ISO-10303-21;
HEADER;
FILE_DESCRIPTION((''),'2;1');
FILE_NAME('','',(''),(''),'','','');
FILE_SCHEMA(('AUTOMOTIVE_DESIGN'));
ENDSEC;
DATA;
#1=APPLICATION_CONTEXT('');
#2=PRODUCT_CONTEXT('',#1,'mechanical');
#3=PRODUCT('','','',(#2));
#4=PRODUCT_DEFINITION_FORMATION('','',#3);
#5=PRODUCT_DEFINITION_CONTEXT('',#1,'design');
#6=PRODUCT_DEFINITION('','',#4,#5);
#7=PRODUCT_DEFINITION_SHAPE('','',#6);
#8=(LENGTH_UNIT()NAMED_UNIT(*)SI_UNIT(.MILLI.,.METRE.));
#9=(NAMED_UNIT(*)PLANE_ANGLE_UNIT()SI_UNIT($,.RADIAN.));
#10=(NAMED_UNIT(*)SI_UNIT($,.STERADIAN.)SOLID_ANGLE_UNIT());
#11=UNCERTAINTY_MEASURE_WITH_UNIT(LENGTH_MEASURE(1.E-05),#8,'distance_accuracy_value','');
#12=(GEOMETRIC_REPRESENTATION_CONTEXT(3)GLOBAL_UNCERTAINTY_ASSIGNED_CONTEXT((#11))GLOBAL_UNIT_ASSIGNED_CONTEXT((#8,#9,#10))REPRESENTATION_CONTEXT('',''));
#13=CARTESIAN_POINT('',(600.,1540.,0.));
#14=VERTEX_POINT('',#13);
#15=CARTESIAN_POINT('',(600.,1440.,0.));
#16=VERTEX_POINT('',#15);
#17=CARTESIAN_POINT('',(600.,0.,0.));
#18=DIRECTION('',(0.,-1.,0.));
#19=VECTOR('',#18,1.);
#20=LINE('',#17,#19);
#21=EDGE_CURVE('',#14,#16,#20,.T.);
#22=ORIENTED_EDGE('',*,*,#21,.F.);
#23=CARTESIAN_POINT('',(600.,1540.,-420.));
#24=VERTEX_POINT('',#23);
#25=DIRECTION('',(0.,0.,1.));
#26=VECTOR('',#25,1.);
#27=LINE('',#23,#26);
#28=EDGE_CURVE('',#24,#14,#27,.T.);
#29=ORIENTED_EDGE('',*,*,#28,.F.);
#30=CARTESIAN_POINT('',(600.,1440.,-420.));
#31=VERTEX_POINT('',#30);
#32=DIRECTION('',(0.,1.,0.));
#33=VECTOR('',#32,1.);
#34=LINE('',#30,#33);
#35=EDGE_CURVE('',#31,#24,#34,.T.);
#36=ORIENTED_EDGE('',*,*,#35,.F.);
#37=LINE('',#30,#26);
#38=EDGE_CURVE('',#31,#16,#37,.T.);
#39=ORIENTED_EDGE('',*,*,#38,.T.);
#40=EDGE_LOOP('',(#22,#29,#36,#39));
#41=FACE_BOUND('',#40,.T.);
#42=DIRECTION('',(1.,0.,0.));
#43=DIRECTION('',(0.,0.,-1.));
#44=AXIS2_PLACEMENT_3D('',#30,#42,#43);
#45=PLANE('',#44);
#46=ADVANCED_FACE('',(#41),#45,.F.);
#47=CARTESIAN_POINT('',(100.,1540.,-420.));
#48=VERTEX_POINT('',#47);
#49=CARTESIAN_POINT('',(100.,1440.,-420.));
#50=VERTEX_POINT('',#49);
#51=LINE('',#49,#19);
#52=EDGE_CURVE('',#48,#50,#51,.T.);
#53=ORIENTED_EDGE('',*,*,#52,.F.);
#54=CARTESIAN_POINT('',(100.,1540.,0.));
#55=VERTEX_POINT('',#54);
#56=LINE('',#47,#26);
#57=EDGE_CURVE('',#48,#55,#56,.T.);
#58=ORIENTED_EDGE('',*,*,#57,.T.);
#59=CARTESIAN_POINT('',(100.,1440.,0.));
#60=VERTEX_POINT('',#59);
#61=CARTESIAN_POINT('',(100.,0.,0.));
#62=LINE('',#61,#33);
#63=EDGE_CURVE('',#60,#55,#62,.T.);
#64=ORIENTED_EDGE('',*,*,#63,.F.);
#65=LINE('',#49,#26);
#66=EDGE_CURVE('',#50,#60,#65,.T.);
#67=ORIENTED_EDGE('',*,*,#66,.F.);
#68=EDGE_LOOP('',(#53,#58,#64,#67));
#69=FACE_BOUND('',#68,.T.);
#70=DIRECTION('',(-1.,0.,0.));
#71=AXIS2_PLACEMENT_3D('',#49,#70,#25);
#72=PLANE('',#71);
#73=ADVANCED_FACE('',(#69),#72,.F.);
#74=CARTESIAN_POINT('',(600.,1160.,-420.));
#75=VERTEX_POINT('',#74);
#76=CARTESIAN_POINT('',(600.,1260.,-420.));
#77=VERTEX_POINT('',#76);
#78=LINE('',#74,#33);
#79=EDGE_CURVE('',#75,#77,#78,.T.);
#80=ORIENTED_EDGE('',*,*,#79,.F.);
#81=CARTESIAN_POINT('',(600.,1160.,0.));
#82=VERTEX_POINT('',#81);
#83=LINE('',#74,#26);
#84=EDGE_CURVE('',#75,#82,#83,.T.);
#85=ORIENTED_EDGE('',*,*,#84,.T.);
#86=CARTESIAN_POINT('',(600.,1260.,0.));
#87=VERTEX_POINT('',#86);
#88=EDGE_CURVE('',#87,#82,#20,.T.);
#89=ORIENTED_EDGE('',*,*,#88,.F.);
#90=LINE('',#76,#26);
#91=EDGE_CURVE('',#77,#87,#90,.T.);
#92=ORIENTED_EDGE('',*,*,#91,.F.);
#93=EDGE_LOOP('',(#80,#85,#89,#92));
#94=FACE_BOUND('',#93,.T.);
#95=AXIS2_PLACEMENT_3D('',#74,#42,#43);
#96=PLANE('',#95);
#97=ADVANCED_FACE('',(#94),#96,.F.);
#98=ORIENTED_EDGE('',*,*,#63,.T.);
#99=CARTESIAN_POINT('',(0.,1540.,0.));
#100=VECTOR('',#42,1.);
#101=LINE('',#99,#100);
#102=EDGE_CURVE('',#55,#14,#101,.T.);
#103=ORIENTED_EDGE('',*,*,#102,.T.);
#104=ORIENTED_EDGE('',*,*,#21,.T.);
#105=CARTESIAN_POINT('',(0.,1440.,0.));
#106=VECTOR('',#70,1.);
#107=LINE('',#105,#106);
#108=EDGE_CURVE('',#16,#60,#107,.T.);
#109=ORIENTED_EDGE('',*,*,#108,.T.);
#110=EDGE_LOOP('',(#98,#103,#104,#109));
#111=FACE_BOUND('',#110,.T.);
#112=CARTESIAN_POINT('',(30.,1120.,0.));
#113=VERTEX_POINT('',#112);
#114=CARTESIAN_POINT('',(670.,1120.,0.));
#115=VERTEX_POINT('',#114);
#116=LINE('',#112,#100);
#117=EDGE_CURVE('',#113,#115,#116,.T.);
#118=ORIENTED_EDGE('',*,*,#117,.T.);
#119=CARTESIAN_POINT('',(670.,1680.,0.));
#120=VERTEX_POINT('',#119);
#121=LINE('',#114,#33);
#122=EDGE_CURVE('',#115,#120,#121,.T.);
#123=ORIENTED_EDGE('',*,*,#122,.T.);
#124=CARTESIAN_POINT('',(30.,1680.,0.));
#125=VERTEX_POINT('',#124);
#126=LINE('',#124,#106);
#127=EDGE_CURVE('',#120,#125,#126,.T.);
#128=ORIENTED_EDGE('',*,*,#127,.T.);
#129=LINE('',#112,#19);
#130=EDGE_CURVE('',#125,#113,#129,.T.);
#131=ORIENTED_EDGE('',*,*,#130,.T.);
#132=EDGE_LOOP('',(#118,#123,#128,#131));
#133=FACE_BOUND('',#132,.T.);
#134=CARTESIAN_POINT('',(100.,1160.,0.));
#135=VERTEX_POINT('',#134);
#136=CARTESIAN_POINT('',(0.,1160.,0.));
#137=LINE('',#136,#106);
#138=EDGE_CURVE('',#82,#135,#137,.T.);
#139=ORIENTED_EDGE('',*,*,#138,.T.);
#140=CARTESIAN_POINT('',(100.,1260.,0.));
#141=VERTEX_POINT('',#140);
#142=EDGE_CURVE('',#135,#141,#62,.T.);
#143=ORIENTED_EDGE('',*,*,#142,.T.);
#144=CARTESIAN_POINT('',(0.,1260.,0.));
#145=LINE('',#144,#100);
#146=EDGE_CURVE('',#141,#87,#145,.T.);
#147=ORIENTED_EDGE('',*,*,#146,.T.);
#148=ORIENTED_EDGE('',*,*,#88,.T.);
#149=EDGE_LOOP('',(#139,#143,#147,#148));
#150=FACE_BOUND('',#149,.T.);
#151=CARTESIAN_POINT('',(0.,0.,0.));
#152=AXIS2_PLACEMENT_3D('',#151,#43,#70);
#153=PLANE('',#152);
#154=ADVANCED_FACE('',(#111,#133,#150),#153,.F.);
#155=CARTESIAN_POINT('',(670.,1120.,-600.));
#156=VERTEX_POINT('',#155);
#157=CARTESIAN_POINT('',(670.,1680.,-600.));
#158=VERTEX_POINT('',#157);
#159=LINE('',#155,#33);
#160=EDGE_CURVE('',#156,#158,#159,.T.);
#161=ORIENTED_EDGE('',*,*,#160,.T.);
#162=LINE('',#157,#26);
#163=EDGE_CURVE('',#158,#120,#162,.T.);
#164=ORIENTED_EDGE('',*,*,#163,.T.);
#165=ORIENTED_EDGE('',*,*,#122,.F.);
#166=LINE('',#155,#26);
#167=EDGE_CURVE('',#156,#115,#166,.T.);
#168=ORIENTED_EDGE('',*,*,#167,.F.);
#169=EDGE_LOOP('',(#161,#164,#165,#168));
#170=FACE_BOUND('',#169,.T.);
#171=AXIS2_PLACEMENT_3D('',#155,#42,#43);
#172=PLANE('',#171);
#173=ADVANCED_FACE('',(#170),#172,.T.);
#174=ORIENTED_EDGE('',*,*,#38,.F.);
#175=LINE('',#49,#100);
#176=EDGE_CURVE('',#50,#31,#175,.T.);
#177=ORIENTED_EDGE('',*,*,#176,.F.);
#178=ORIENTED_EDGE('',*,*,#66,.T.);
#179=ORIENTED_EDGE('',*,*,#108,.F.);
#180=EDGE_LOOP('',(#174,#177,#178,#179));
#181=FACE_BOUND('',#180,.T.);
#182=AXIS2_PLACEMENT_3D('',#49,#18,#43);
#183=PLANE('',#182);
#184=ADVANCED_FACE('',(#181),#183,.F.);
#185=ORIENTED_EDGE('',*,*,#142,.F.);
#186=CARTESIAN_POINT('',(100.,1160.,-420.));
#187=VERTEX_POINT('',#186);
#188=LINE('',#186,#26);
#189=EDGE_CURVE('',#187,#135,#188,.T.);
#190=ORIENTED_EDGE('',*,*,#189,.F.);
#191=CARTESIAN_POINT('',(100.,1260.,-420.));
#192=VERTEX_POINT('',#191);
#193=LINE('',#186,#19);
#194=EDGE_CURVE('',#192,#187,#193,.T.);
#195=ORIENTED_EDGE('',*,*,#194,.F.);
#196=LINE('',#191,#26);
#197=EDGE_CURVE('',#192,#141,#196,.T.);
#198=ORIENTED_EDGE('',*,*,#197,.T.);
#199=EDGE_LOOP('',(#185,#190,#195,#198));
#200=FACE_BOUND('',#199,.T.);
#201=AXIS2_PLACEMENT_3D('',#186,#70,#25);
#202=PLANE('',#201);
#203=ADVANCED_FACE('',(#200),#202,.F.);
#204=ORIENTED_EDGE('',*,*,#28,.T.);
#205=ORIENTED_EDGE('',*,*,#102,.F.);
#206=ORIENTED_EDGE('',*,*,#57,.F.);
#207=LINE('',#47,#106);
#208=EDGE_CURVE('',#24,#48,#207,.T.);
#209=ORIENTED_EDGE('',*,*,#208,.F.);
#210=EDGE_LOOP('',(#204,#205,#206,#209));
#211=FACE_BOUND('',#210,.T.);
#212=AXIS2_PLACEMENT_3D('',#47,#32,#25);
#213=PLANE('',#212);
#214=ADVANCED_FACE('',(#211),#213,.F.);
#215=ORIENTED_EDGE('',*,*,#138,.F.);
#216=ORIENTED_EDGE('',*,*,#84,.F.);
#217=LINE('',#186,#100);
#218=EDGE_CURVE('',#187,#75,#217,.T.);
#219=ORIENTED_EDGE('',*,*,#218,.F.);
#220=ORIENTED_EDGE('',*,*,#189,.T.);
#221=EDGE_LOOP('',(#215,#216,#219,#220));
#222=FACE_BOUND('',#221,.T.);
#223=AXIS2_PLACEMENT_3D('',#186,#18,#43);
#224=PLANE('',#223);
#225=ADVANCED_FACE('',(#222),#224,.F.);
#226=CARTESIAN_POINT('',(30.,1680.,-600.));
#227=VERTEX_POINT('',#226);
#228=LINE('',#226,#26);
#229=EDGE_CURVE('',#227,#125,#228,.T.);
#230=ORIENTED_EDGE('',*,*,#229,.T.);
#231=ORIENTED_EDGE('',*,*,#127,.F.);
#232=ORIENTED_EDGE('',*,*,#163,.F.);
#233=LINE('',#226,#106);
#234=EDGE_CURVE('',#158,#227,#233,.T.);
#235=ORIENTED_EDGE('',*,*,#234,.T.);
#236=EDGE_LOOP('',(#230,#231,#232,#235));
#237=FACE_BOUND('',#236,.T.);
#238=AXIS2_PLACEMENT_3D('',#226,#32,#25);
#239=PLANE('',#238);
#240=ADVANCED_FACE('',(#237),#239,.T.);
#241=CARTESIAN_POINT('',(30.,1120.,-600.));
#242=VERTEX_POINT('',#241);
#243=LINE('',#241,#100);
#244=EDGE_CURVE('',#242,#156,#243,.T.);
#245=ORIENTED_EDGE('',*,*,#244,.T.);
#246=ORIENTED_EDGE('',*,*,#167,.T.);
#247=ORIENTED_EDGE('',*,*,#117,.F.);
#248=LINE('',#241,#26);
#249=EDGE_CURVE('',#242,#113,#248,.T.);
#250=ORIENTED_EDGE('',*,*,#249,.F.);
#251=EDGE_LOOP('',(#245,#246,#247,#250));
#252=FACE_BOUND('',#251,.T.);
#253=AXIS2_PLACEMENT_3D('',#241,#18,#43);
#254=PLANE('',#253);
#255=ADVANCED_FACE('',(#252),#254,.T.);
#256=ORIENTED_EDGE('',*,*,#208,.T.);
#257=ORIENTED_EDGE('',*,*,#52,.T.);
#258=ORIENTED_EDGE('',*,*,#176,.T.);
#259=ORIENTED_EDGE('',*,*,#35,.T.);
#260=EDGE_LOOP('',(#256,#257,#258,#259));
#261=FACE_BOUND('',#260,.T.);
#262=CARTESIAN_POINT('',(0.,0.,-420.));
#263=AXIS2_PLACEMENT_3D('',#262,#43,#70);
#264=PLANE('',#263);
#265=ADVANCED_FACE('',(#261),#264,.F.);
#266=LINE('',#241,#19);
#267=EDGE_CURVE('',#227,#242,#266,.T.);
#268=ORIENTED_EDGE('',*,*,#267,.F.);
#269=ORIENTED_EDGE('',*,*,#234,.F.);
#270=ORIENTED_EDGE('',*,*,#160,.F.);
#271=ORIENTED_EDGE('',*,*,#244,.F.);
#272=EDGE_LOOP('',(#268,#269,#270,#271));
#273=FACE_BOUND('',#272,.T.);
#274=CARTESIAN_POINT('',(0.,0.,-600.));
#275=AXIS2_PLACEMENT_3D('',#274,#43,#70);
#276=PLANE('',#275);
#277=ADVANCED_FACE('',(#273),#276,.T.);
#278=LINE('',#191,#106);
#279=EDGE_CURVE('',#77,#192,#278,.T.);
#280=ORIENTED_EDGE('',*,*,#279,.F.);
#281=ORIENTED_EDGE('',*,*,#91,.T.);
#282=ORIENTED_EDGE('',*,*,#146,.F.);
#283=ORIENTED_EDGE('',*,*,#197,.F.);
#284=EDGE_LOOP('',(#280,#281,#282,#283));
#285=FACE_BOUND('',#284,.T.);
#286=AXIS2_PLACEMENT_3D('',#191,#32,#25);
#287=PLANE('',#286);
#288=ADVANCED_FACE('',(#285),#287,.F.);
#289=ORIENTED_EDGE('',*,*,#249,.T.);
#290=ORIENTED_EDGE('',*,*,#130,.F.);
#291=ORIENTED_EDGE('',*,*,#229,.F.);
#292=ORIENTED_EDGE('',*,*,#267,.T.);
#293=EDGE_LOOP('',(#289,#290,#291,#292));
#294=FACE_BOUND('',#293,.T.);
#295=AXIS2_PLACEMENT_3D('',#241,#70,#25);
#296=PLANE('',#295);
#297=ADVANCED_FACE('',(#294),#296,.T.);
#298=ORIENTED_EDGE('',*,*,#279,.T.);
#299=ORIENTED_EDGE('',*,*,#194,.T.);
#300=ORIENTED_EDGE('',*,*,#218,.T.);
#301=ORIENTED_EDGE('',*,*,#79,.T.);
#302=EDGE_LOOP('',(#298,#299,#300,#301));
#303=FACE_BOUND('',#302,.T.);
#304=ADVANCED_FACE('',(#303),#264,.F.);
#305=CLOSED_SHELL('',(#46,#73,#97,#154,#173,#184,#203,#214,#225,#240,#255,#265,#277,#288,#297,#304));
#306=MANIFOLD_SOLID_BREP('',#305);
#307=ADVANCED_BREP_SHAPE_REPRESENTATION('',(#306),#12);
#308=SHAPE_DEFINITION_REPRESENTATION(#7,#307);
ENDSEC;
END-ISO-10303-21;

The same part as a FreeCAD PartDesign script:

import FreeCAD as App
import Part
import Sketcher
Q = App.Units.Quantity

doc = App.newDocument("Part")
body = doc.addObject("PartDesign::Body", "Body")

# Sketch on XY plane
sketch1 = doc.addObject("Sketcher::SketchObject", "Sketch")
body.addObject(sketch1)
sketch1.AttachmentSupport = (doc.XY_Plane, [""])
sketch1.MapMode = "FlatFace"
sketch1.addGeometry(Part.LineSegment(App.Vector(30, 1680, 0), App.Vector(30, 1120, 0)), False)
sketch1.addGeometry(Part.LineSegment(App.Vector(30, 1120, 0), App.Vector(670, 1120, 0)), False)
sketch1.addGeometry(Part.LineSegment(App.Vector(670, 1120, 0), App.Vector(670, 1680, 0)), False)
sketch1.addGeometry(Part.LineSegment(App.Vector(670, 1680, 0), App.Vector(30, 1680, 0)), False)
sketch1.addConstraint(Sketcher.Constraint("Coincident", 0, 2, 1, 1))
sketch1.addConstraint(Sketcher.Constraint("Coincident", 1, 2, 2, 1))
sketch1.addConstraint(Sketcher.Constraint("Coincident", 2, 2, 3, 1))
sketch1.addConstraint(Sketcher.Constraint("Coincident", 3, 2, 0, 1))
sketch1.addConstraint(Sketcher.Constraint("Vertical", 0))
sketch1.addConstraint(Sketcher.Constraint("Horizontal", 1))
sketch1.addConstraint(Sketcher.Constraint("Vertical", 2))
sketch1.addConstraint(Sketcher.Constraint("Horizontal", 3))
sketch1.addConstraint(Sketcher.Constraint("DistanceX", 1, 1, 1, 2, Q("640 mm")))
sketch1.addConstraint(Sketcher.Constraint("DistanceY", 0, 2, 0, 1, Q("560 mm")))
sketch1.addConstraint(Sketcher.Constraint("DistanceX", -1, 1, 0, 2, Q("30 mm")))
sketch1.addConstraint(Sketcher.Constraint("DistanceY", -1, 1, 0, 2, Q("1120 mm")))
pad1 = doc.addObject("PartDesign::Pad", "Pad")
body.addObject(pad1)
pad1.Profile = sketch1
pad1.Length = 600
pad1.Reversed = True

# Sketch on XY plane
sketch2 = doc.addObject("Sketcher::SketchObject", "Sketch001")
body.addObject(sketch2)
sketch2.AttachmentSupport = (doc.XY_Plane, [""])
sketch2.MapMode = "FlatFace"
sketch2.AttachmentOffset = App.Placement(App.Vector(0, 0, 1), App.Rotation())
sketch2.addGeometry(Part.LineSegment(App.Vector(100, 1260, 0), App.Vector(100, 1160, 0)), False)
sketch2.addGeometry(Part.LineSegment(App.Vector(100, 1160, 0), App.Vector(600, 1160, 0)), False)
sketch2.addGeometry(Part.LineSegment(App.Vector(600, 1160, 0), App.Vector(600, 1260, 0)), False)
sketch2.addGeometry(Part.LineSegment(App.Vector(600, 1260, 0), App.Vector(100, 1260, 0)), False)
sketch2.addConstraint(Sketcher.Constraint("Coincident", 0, 2, 1, 1))
sketch2.addConstraint(Sketcher.Constraint("Coincident", 1, 2, 2, 1))
sketch2.addConstraint(Sketcher.Constraint("Coincident", 2, 2, 3, 1))
sketch2.addConstraint(Sketcher.Constraint("Coincident", 3, 2, 0, 1))
sketch2.addConstraint(Sketcher.Constraint("Vertical", 0))
sketch2.addConstraint(Sketcher.Constraint("Horizontal", 1))
sketch2.addConstraint(Sketcher.Constraint("Vertical", 2))
sketch2.addConstraint(Sketcher.Constraint("Horizontal", 3))
sketch2.addConstraint(Sketcher.Constraint("DistanceX", 1, 1, 1, 2, Q("500 mm")))
sketch2.addConstraint(Sketcher.Constraint("DistanceY", 0, 2, 0, 1, Q("100 mm")))
sketch2.addConstraint(Sketcher.Constraint("DistanceX", -1, 1, 0, 2, Q("100 mm")))
sketch2.addConstraint(Sketcher.Constraint("DistanceY", -1, 1, 0, 2, Q("1160 mm")))
pocket1 = doc.addObject("PartDesign::Pocket", "Pocket")
body.addObject(pocket1)
pocket1.Profile = sketch2
pocket1.Length = 421

# Sketch on XY plane
sketch3 = doc.addObject("Sketcher::SketchObject", "Sketch002")
body.addObject(sketch3)
sketch3.AttachmentSupport = (doc.XY_Plane, [""])
sketch3.MapMode = "FlatFace"
sketch3.AttachmentOffset = App.Placement(App.Vector(0, 0, 1), App.Rotation())
sketch3.addGeometry(Part.LineSegment(App.Vector(100, 1540, 0), App.Vector(100, 1440, 0)), False)
sketch3.addGeometry(Part.LineSegment(App.Vector(100, 1440, 0), App.Vector(600, 1440, 0)), False)
sketch3.addGeometry(Part.LineSegment(App.Vector(600, 1440, 0), App.Vector(600, 1540, 0)), False)
sketch3.addGeometry(Part.LineSegment(App.Vector(600, 1540, 0), App.Vector(100, 1540, 0)), False)
sketch3.addConstraint(Sketcher.Constraint("Coincident", 0, 2, 1, 1))
sketch3.addConstraint(Sketcher.Constraint("Coincident", 1, 2, 2, 1))
sketch3.addConstraint(Sketcher.Constraint("Coincident", 2, 2, 3, 1))
sketch3.addConstraint(Sketcher.Constraint("Coincident", 3, 2, 0, 1))
sketch3.addConstraint(Sketcher.Constraint("Vertical", 0))
sketch3.addConstraint(Sketcher.Constraint("Horizontal", 1))
sketch3.addConstraint(Sketcher.Constraint("Vertical", 2))
sketch3.addConstraint(Sketcher.Constraint("Horizontal", 3))
sketch3.addConstraint(Sketcher.Constraint("DistanceX", 1, 1, 1, 2, Q("500 mm")))
sketch3.addConstraint(Sketcher.Constraint("DistanceY", 0, 2, 0, 1, Q("100 mm")))
sketch3.addConstraint(Sketcher.Constraint("DistanceX", -1, 1, 0, 2, Q("100 mm")))
sketch3.addConstraint(Sketcher.Constraint("DistanceY", -1, 1, 0, 2, Q("1440 mm")))
pocket2 = doc.addObject("PartDesign::Pocket", "Pocket001")
body.addObject(pocket2)
pocket2.Profile = sketch3
pocket2.Length = 421

doc.recompute()
